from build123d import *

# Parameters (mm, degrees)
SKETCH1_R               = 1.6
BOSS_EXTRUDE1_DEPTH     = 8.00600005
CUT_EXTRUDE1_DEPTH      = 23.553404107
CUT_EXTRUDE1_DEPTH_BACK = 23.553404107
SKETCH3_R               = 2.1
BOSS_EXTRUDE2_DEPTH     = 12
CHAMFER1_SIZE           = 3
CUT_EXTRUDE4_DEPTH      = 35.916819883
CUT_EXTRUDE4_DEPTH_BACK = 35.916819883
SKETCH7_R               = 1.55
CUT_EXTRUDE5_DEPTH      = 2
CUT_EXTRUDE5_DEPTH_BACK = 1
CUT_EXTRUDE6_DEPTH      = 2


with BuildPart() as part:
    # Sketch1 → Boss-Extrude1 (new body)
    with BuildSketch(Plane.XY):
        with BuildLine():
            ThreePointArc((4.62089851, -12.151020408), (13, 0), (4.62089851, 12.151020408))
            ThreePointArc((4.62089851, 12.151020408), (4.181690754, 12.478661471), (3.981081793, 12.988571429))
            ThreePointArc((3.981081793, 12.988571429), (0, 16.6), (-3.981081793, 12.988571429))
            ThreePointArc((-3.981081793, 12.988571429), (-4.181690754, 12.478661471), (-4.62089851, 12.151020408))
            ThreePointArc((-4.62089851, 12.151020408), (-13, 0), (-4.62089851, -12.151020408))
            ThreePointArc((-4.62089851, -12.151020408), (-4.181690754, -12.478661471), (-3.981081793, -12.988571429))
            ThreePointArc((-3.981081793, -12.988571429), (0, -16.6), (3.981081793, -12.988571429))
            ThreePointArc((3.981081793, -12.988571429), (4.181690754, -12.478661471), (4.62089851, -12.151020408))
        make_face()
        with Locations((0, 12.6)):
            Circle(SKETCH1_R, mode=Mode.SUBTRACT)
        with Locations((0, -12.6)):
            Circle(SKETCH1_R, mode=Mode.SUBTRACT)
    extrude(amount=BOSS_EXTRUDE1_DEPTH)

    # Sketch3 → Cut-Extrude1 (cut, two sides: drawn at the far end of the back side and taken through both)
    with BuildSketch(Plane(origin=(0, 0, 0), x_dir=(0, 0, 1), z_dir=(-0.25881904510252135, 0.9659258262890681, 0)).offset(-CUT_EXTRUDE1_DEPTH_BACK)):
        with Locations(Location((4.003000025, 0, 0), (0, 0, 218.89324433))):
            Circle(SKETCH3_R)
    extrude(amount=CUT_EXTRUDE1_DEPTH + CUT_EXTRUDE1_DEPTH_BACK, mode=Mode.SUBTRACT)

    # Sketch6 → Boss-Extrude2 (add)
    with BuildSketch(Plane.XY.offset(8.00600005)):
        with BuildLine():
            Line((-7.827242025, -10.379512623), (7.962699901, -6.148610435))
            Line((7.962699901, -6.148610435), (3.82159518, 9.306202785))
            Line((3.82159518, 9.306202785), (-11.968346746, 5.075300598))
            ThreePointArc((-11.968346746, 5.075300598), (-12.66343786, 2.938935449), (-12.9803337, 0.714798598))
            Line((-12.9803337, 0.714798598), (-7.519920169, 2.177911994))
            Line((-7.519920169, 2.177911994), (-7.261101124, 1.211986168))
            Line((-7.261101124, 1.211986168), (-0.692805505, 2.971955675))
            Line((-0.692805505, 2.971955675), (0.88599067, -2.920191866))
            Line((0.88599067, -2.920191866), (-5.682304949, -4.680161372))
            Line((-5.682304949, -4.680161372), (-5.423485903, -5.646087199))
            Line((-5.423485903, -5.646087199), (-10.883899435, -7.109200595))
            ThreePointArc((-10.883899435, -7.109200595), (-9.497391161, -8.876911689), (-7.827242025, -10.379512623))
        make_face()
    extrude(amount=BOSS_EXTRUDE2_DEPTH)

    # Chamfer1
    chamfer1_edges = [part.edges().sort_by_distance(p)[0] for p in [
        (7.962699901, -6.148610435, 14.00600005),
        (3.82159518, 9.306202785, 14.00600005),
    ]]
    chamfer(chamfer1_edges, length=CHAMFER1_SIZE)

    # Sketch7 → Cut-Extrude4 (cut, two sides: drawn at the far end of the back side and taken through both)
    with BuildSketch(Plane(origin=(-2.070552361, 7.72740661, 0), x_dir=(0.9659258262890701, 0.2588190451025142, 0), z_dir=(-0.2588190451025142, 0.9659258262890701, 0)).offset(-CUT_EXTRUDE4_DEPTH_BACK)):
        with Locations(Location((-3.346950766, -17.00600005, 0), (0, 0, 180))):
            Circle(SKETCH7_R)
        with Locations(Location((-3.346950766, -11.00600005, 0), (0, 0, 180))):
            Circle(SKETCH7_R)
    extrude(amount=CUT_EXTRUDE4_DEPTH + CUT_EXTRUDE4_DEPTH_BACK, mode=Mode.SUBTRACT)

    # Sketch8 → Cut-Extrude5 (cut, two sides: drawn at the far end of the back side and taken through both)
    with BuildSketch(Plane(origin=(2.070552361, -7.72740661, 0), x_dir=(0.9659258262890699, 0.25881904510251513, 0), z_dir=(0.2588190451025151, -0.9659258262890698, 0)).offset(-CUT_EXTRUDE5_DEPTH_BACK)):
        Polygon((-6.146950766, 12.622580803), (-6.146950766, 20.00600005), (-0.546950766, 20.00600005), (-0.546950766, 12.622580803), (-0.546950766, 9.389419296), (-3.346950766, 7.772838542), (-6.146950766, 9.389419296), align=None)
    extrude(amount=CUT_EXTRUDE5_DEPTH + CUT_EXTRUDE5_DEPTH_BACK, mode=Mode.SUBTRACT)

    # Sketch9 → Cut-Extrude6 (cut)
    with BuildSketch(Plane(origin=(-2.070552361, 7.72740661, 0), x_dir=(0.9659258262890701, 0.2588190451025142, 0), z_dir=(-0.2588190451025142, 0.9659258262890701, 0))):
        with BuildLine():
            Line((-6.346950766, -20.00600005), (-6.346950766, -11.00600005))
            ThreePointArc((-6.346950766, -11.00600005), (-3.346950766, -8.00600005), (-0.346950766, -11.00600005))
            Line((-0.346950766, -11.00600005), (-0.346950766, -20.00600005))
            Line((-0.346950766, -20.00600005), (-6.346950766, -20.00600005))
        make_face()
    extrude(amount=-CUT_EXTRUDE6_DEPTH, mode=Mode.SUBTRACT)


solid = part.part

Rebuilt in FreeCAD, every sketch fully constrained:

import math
import FreeCAD as App
import Part
import Sketcher
from FreeCAD import Vector
Q = App.Units.Quantity


def edges_at(feature, points):
    """Names of the edges that pass closest to the given points."""
    edges = feature.Shape.Edges
    near = lambda p: min(range(len(edges)), key=lambda i: edges[i].distToShape(Part.Vertex(*p))[0])
    return sorted({f"Edge{near(p) + 1}" for p in points})

doc = App.newDocument("Part")
body = doc.addObject("PartDesign::Body", "Body")

# Sketch on XY plane
sketch1 = body.newObject("Sketcher::SketchObject", "Sketch")
sketch1.AttachmentSupport = (doc.getObject("XY_Plane"), [""])
sketch1.MapMode = "FlatFace"
sketch1.addGeometry(Part.ArcOfCircle(Part.Circle(Vector(0, 0, 0), Vector(0, 0, 1), 13), math.radians(-69.178745), math.radians(69.178745)), False)
sketch1.addGeometry(Part.ArcOfCircle(Part.Circle(Vector(4.976352, 13.085714, 0), Vector(0, 0, 1), 1), math.radians(-174.425333), math.radians(-110.821255)), False)
sketch1.addGeometry(Part.ArcOfCircle(Part.Circle(Vector(0, 12.6, 0), Vector(0, 0, 1), 4), math.radians(5.574667), math.radians(174.425333)), False)
sketch1.addGeometry(Part.ArcOfCircle(Part.Circle(Vector(-4.976352, 13.085714, 0), Vector(0, 0, 1), 1), math.radians(-69.178745), math.radians(-5.574667)), False)
sketch1.addGeometry(Part.ArcOfCircle(Part.Circle(Vector(0, 0, 0), Vector(0, 0, 1), 13), math.radians(110.821255), math.radians(249.178745)), False)
sketch1.addGeometry(Part.ArcOfCircle(Part.Circle(Vector(-4.976352, -13.085714, 0), Vector(0, 0, 1), 1), math.radians(5.574667), math.radians(69.178745)), False)
sketch1.addGeometry(Part.ArcOfCircle(Part.Circle(Vector(0, -12.6, 0), Vector(0, 0, 1), 4), math.radians(-174.425333), math.radians(-5.574667)), False)
sketch1.addGeometry(Part.ArcOfCircle(Part.Circle(Vector(4.976352, -13.085714, 0), Vector(0, 0, 1), 1), math.radians(110.821255), math.radians(174.425333)), False)
sketch1.addGeometry(Part.Circle(Vector(0, -12.6, 0), Vector(0, 0, 1), 1.6), False)
sketch1.addGeometry(Part.Circle(Vector(0, 12.6, 0), Vector(0, 0, 1), 1.6), False)
sketch1.addConstraint(Sketcher.Constraint("Tangent", 0, 2, 1, 2))
sketch1.addConstraint(Sketcher.Constraint("Tangent", 1, 1, 2, 1))
sketch1.addConstraint(Sketcher.Constraint("Tangent", 2, 2, 3, 2))
sketch1.addConstraint(Sketcher.Constraint("Tangent", 3, 1, 4, 1))
sketch1.addConstraint(Sketcher.Constraint("Tangent", 4, 2, 5, 2))
sketch1.addConstraint(Sketcher.Constraint("Tangent", 5, 1, 6, 1))
sketch1.addConstraint(Sketcher.Constraint("Tangent", 6, 2, 7, 2))
sketch1.addConstraint(Sketcher.Constraint("Tangent", 7, 1, 0, 1))
sketch1.addConstraint(Sketcher.Constraint("Coincident", 0, 3, -1, 1))
sketch1.addConstraint(Sketcher.Constraint("Coincident", 4, 3, -1, 1))
sketch1.addConstraint(Sketcher.Constraint("Coincident", 8, 3, 6, 3))
sketch1.addConstraint(Sketcher.Constraint("Coincident", 9, 3, 2, 3))
sketch1.addConstraint(Sketcher.Constraint("Equal", 1, 3))
sketch1.addConstraint(Sketcher.Constraint("Equal", 0, 4))
sketch1.addConstraint(Sketcher.Constraint("Equal", 3, 5))
sketch1.addConstraint(Sketcher.Constraint("Equal", 2, 6))
sketch1.addConstraint(Sketcher.Constraint("Equal", 5, 7))
sketch1.addConstraint(Sketcher.Constraint("Equal", 8, 9))
sketch1.addConstraint(Sketcher.Constraint("Symmetric", 2, 3, 6, 3, -1, 1))
sketch1.addConstraint(Sketcher.Constraint("PointOnObject", 2, 3, -2))
sketch1.addConstraint(Sketcher.Constraint("Radius", 0, Q("13 mm")))
sketch1.addConstraint(Sketcher.Constraint("Radius", 1, Q("1 mm")))
sketch1.addConstraint(Sketcher.Constraint("Radius", 2, Q("4 mm")))
sketch1.addConstraint(Sketcher.Constraint("Diameter", 8, Q("3.2 mm")))
sketch1.addConstraint(Sketcher.Constraint("DistanceY", -1, 1, 2, 3, Q("12.6 mm")))
pad1 = body.newObject("PartDesign::Pad", "Pad")
pad1.Profile = sketch1
pad1.Length = 8.006

# Sketch on an angled plane
sketch2 = body.newObject("Sketcher::SketchObject", "Sketch001")
sketch2.Placement = App.Placement(Vector(0, 0, 0), App.Rotation(Vector(0, 0, 1), Vector(0.965925826, 0.258819045, 0), Vector(-0.258819045, 0.965925826, 0), "ZXY"))
sketch2.addGeometry(Part.Circle(Vector(4.003, 0, 0), Vector(0, 0, 1), 2.1), False)
sketch2.addConstraint(Sketcher.Constraint("PointOnObject", 0, 3, -1))
sketch2.addConstraint(Sketcher.Constraint("Diameter", 0, Q("4.2 mm")))
sketch2.addConstraint(Sketcher.Constraint("DistanceX", -1, 1, 0, 3, Q("4.003 mm")))
pocket1 = body.newObject("PartDesign::Pocket", "Pocket")
pocket1.Profile = sketch2
pocket1.Type = "ThroughAll"
pocket1.Midplane = True

# Sketch on XY plane
sketch3 = body.newObject("Sketcher::SketchObject", "Sketch002")
sketch3.AttachmentSupport = (doc.getObject("XY_Plane"), [""])
sketch3.MapMode = "FlatFace"
sketch3.AttachmentOffset = App.Placement(Vector(0, 0, 8.006), App.Rotation())
sketch3.addGeometry(Part.LineSegment(Vector(-7.827242, -10.379513, 0), Vector(7.9627, -6.14861, 0)), False)
sketch3.addGeometry(Part.LineSegment(Vector(7.9627, -6.14861, 0), Vector(3.821595, 9.306203, 0)), False)
sketch3.addGeometry(Part.LineSegment(Vector(3.821595, 9.306203, 0), Vector(-11.968347, 5.075301, 0)), False)
sketch3.addGeometry(Part.ArcOfCircle(Part.Circle(Vector(0, 0, 0), Vector(0, 0, 1), 13), math.radians(157.020128), math.radians(176.84803)), False)
sketch3.addGeometry(Part.LineSegment(Vector(-12.980334, 0.714799, 0), Vector(-7.51992, 2.177912, 0)), False)
sketch3.addGeometry(Part.LineSegment(Vector(-7.51992, 2.177912, 0), Vector(-7.261101, 1.211986, 0)), False)
sketch3.addGeometry(Part.LineSegment(Vector(-7.261101, 1.211986, 0), Vector(-0.692806, 2.971956, 0)), False)
sketch3.addGeometry(Part.LineSegment(Vector(-0.692806, 2.971956, 0), Vector(0.885991, -2.920192, 0)), False)
sketch3.addGeometry(Part.LineSegment(Vector(0.885991, -2.920192, 0), Vector(-5.682305, -4.680161, 0)), False)
sketch3.addGeometry(Part.LineSegment(Vector(-5.682305, -4.680161, 0), Vector(-5.423486, -5.646087, 0)), False)
sketch3.addGeometry(Part.LineSegment(Vector(-5.423486, -5.646087, 0), Vector(-10.883899, -7.109201, 0)), False)
sketch3.addGeometry(Part.ArcOfCircle(Part.Circle(Vector(0, 0, 0), Vector(0, 0, 1), 13), math.radians(-146.84803), math.radians(-127.020128)), False)
sketch3.addConstraint(Sketcher.Constraint("Coincident", 0, 2, 1, 1))
sketch3.addConstraint(Sketcher.Constraint("Coincident", 1, 2, 2, 1))
sketch3.addConstraint(Sketcher.Constraint("Coincident", 2, 2, 3, 1))
sketch3.addConstraint(Sketcher.Constraint("Coincident", 3, 2, 4, 1))
sketch3.addConstraint(Sketcher.Constraint("Coincident", 4, 2, 5, 1))
sketch3.addConstraint(Sketcher.Constraint("Coincident", 5, 2, 6, 1))
sketch3.addConstraint(Sketcher.Constraint("Coincident", 6, 2, 7, 1))
sketch3.addConstraint(Sketcher.Constraint("Coincident", 7, 2, 8, 1))
sketch3.addConstraint(Sketcher.Constraint("Coincident", 8, 2, 9, 1))
sketch3.addConstraint(Sketcher.Constraint("Coincident", 9, 2, 10, 1))
sketch3.addConstraint(Sketcher.Constraint("Coincident", 10, 2, 11, 1))
sketch3.addConstraint(Sketcher.Constraint("Coincident", 11, 2, 0, 1))
sketch3.addConstraint(Sketcher.Constraint("Coincident", 3, 3, -1, 1))
sketch3.addConstraint(Sketcher.Constraint("Coincident", 11, 3, -1, 1))
sketch3.addConstraint(Sketcher.Constraint("Equal", 3, 11))
sketch3.addConstraint(Sketcher.Constraint("Perpendicular", 0, 1))
sketch3.addConstraint(Sketcher.Constraint("Perpendicular", 1, 2))
sketch3.addConstraint(Sketcher.Constraint("Parallel", 2, 4))
sketch3.addConstraint(Sketcher.Constraint("Perpendicular", 4, 5))
sketch3.addConstraint(Sketcher.Constraint("Perpendicular", 5, 6))
sketch3.addConstraint(Sketcher.Constraint("Perpendicular", 6, 7))
sketch3.addConstraint(Sketcher.Constraint("Perpendicular", 7, 8))
sketch3.addConstraint(Sketcher.Constraint("Perpendicular", 8, 9))
sketch3.addConstraint(Sketcher.Constraint("Perpendicular", 9, 10))
sketch3.addConstraint(Sketcher.Constraint("Equal", 0, 2))
sketch3.addConstraint(Sketcher.Constraint("Equal", 6, 8))
sketch3.addConstraint(Sketcher.Constraint("Equal", 5, 9))
sketch3.addConstraint(Sketcher.Constraint("Equal", 4, 10))
sketch3.addConstraint(Sketcher.Constraint("Radius", 3, Q("13 mm")))
sketch3.addConstraint(Sketcher.Constraint("Angle", 0, Q("15 deg")))
sketch3.addConstraint(Sketcher.Constraint("Distance", 1, Q("16 mm")))
sketch3.addConstraint(Sketcher.Constraint("Distance", 5, Q("1 mm")))
sketch3.addConstraint(Sketcher.Constraint("Distance", 6, Q("6.8 mm")))
sketch3.addConstraint(Sketcher.Constraint("Distance", 7, Q("6.1 mm")))
sketch3.addConstraint(Sketcher.Constraint("DistanceX", -1, 1, 0, 2, Q("7.9627 mm")))
sketch3.addConstraint(Sketcher.Constraint("DistanceX", 5, 2, -1, 1, Q("7.261101 mm")))
pad2 = body.newObject("PartDesign::Pad", "Pad001")
pad2.Profile = sketch3
pad2.Length = 12
doc.recompute()

chamfer = body.newObject("PartDesign::Chamfer", "Chamfer")
chamfer.Base = (pad2, edges_at(pad2, [(7.963, -6.149, 14.006), (3.822, 9.306, 14.006)]))
chamfer.Size = 3

# Sketch on an angled plane
sketch4 = body.newObject("Sketcher::SketchObject", "Sketch003")
sketch4.Placement = App.Placement(Vector(-2.070552, 7.727407, 0), App.Rotation(Vector(0.965925826, 0.258819045, 0), Vector(0, 0, -0.999999999), Vector(-0.258819045, 0.965925826, 0), "ZXY"))
sketch4.addGeometry(Part.Circle(Vector(-3.346951, -17.006, 0), Vector(0, 0, 1), 1.55), False)
sketch4.addGeometry(Part.Circle(Vector(-3.346951, -11.006, 0), Vector(0, 0, 1), 1.55), False)
sketch4.addConstraint(Sketcher.Constraint("Equal", 0, 1))
sketch4.addConstraint(Sketcher.Constraint("Vertical", 0, 3, 1, 3))
sketch4.addConstraint(Sketcher.Constraint("Diameter", 0, Q("3.1 mm")))
sketch4.addConstraint(Sketcher.Constraint("DistanceY", 0, 3, 1, 3, Q("6 mm")))
sketch4.addConstraint(Sketcher.Constraint("DistanceY", 0, 3, -1, 1, Q("17.006 mm")))
sketch4.addConstraint(Sketcher.Constraint("DistanceX", 0, 3, -1, 1, Q("3.346951 mm")))
pocket2 = body.newObject("PartDesign::Pocket", "Pocket001")
pocket2.Profile = sketch4
pocket2.Type = "ThroughAll"
pocket2.Midplane = True

# Sketch on an angled plane
sketch5 = body.newObject("Sketcher::SketchObject", "Sketch004")
sketch5.Placement = App.Placement(Vector(2.070552, -7.727407, 0), App.Rotation(Vector(0.965925826, 0.258819045, 0), Vector(0, 0, 0.999999999), Vector(0.258819045, -0.965925826, 0), "ZXY"))
sketch5.addGeometry(Part.LineSegment(Vector(-6.146951, 20.006, 0), Vector(-6.146951, 9.389419, 0)), False)
sketch5.addGeometry(Part.LineSegment(Vector(-6.146951, 9.389419, 0), Vector(-3.346951, 7.772839, 0)), False)
sketch5.addGeometry(Part.LineSegment(Vector(-3.346951, 7.772839, 0), Vector(-0.546951, 9.389419, 0)), False)
sketch5.addGeometry(Part.LineSegment(Vector(-0.546951, 9.389419, 0), Vector(-0.546951, 20.006, 0)), False)
sketch5.addGeometry(Part.LineSegment(Vector(-0.546951, 20.006, 0), Vector(-6.146951, 20.006, 0)), False)
sketch5.addConstraint(Sketcher.Constraint("Coincident", 0, 2, 1, 1))
sketch5.addConstraint(Sketcher.Constraint("Coincident", 1, 2, 2, 1))
sketch5.addConstraint(Sketcher.Constraint("Coincident", 2, 2, 3, 1))
sketch5.addConstraint(Sketcher.Constraint("Coincident", 3, 2, 4, 1))
sketch5.addConstraint(Sketcher.Constraint("Coincident", 4, 2, 0, 1))
sketch5.addConstraint(Sketcher.Constraint("Vertical", 0))
sketch5.addConstraint(Sketcher.Constraint("Vertical", 3))
sketch5.addConstraint(Sketcher.Constraint("Horizontal", 4))
sketch5.addConstraint(Sketcher.Constraint("Horizontal", 0, 2, 2, 2))
sketch5.addConstraint(Sketcher.Constraint("Equal", 1, 2))
sketch5.addConstraint(Sketcher.Constraint("Angle", 1, Q("-30 deg")))
sketch5.addConstraint(Sketcher.Constraint("DistanceX", 4, 2, 4, 1, Q("5.6 mm")))
sketch5.addConstraint(Sketcher.Constraint("DistanceY", -1, 1, 3, 2, Q("20.006 mm")))
sketch5.addConstraint(Sketcher.Constraint("DistanceY", 0, 2, 0, 1, Q("10.616581 mm")))
sketch5.addConstraint(Sketcher.Constraint("DistanceX", 0, 2, -1, 1, Q("6.146951 mm")))
pocket3 = body.newObject("PartDesign::Pocket", "Pocket002")
pocket3.Profile = sketch5
pocket3.Type = "TwoLengths"
pocket3.Length = 2
pocket3.Length2 = 1
pocket3.Reversed = True

# Sketch on an angled plane
sketch6 = body.newObject("Sketcher::SketchObject", "Sketch005")
sketch6.Placement = App.Placement(Vector(-2.070552, 7.727407, 0), App.Rotation(Vector(0.965925826, 0.258819045, 0), Vector(0, 0, -0.999999999), Vector(-0.258819045, 0.965925826, 0), "ZXY"))
sketch6.addGeometry(Part.LineSegment(Vector(-6.346951, -11.006, 0), Vector(-6.346951, -20.006, 0)), False)
sketch6.addGeometry(Part.LineSegment(Vector(-6.346951, -20.006, 0), Vector(-0.346951, -20.006, 0)), False)
sketch6.addGeometry(Part.LineSegment(Vector(-0.346951, -20.006, 0), Vector(-0.346951, -11.006, 0)), False)
sketch6.addGeometry(Part.ArcOfCircle(Part.Circle(Vector(-3.346951, -11.006, 0), Vector(0, 0, 1), 3), math.radians(0), math.radians(180)), False)
sketch6.addConstraint(Sketcher.Constraint("Coincident", 0, 2, 1, 1))
sketch6.addConstraint(Sketcher.Constraint("Coincident", 1, 2, 2, 1))
sketch6.addConstraint(Sketcher.Constraint("Tangent", 2, 2, 3, 1))
sketch6.addConstraint(Sketcher.Constraint("Tangent", 3, 2, 0, 1))
sketch6.addConstraint(Sketcher.Constraint("Vertical", 0))
sketch6.addConstraint(Sketcher.Constraint("Horizontal", 1))
sketch6.addConstraint(Sketcher.Constraint("Vertical", 2))
sketch6.addConstraint(Sketcher.Constraint("Radius", 3, Q("3 mm")))
sketch6.addConstraint(Sketcher.Constraint("DistanceY", 0, 2, 0, 1, Q("9 mm")))
sketch6.addConstraint(Sketcher.Constraint("DistanceY", 3, 3, -1, 1, Q("11.006 mm")))
sketch6.addConstraint(Sketcher.Constraint("DistanceX", 3, 3, -1, 1, Q("3.346951 mm")))
pocket4 = body.newObject("PartDesign::Pocket", "Pocket003")
pocket4.Profile = sketch6
pocket4.Length = 2

doc.recompute()
